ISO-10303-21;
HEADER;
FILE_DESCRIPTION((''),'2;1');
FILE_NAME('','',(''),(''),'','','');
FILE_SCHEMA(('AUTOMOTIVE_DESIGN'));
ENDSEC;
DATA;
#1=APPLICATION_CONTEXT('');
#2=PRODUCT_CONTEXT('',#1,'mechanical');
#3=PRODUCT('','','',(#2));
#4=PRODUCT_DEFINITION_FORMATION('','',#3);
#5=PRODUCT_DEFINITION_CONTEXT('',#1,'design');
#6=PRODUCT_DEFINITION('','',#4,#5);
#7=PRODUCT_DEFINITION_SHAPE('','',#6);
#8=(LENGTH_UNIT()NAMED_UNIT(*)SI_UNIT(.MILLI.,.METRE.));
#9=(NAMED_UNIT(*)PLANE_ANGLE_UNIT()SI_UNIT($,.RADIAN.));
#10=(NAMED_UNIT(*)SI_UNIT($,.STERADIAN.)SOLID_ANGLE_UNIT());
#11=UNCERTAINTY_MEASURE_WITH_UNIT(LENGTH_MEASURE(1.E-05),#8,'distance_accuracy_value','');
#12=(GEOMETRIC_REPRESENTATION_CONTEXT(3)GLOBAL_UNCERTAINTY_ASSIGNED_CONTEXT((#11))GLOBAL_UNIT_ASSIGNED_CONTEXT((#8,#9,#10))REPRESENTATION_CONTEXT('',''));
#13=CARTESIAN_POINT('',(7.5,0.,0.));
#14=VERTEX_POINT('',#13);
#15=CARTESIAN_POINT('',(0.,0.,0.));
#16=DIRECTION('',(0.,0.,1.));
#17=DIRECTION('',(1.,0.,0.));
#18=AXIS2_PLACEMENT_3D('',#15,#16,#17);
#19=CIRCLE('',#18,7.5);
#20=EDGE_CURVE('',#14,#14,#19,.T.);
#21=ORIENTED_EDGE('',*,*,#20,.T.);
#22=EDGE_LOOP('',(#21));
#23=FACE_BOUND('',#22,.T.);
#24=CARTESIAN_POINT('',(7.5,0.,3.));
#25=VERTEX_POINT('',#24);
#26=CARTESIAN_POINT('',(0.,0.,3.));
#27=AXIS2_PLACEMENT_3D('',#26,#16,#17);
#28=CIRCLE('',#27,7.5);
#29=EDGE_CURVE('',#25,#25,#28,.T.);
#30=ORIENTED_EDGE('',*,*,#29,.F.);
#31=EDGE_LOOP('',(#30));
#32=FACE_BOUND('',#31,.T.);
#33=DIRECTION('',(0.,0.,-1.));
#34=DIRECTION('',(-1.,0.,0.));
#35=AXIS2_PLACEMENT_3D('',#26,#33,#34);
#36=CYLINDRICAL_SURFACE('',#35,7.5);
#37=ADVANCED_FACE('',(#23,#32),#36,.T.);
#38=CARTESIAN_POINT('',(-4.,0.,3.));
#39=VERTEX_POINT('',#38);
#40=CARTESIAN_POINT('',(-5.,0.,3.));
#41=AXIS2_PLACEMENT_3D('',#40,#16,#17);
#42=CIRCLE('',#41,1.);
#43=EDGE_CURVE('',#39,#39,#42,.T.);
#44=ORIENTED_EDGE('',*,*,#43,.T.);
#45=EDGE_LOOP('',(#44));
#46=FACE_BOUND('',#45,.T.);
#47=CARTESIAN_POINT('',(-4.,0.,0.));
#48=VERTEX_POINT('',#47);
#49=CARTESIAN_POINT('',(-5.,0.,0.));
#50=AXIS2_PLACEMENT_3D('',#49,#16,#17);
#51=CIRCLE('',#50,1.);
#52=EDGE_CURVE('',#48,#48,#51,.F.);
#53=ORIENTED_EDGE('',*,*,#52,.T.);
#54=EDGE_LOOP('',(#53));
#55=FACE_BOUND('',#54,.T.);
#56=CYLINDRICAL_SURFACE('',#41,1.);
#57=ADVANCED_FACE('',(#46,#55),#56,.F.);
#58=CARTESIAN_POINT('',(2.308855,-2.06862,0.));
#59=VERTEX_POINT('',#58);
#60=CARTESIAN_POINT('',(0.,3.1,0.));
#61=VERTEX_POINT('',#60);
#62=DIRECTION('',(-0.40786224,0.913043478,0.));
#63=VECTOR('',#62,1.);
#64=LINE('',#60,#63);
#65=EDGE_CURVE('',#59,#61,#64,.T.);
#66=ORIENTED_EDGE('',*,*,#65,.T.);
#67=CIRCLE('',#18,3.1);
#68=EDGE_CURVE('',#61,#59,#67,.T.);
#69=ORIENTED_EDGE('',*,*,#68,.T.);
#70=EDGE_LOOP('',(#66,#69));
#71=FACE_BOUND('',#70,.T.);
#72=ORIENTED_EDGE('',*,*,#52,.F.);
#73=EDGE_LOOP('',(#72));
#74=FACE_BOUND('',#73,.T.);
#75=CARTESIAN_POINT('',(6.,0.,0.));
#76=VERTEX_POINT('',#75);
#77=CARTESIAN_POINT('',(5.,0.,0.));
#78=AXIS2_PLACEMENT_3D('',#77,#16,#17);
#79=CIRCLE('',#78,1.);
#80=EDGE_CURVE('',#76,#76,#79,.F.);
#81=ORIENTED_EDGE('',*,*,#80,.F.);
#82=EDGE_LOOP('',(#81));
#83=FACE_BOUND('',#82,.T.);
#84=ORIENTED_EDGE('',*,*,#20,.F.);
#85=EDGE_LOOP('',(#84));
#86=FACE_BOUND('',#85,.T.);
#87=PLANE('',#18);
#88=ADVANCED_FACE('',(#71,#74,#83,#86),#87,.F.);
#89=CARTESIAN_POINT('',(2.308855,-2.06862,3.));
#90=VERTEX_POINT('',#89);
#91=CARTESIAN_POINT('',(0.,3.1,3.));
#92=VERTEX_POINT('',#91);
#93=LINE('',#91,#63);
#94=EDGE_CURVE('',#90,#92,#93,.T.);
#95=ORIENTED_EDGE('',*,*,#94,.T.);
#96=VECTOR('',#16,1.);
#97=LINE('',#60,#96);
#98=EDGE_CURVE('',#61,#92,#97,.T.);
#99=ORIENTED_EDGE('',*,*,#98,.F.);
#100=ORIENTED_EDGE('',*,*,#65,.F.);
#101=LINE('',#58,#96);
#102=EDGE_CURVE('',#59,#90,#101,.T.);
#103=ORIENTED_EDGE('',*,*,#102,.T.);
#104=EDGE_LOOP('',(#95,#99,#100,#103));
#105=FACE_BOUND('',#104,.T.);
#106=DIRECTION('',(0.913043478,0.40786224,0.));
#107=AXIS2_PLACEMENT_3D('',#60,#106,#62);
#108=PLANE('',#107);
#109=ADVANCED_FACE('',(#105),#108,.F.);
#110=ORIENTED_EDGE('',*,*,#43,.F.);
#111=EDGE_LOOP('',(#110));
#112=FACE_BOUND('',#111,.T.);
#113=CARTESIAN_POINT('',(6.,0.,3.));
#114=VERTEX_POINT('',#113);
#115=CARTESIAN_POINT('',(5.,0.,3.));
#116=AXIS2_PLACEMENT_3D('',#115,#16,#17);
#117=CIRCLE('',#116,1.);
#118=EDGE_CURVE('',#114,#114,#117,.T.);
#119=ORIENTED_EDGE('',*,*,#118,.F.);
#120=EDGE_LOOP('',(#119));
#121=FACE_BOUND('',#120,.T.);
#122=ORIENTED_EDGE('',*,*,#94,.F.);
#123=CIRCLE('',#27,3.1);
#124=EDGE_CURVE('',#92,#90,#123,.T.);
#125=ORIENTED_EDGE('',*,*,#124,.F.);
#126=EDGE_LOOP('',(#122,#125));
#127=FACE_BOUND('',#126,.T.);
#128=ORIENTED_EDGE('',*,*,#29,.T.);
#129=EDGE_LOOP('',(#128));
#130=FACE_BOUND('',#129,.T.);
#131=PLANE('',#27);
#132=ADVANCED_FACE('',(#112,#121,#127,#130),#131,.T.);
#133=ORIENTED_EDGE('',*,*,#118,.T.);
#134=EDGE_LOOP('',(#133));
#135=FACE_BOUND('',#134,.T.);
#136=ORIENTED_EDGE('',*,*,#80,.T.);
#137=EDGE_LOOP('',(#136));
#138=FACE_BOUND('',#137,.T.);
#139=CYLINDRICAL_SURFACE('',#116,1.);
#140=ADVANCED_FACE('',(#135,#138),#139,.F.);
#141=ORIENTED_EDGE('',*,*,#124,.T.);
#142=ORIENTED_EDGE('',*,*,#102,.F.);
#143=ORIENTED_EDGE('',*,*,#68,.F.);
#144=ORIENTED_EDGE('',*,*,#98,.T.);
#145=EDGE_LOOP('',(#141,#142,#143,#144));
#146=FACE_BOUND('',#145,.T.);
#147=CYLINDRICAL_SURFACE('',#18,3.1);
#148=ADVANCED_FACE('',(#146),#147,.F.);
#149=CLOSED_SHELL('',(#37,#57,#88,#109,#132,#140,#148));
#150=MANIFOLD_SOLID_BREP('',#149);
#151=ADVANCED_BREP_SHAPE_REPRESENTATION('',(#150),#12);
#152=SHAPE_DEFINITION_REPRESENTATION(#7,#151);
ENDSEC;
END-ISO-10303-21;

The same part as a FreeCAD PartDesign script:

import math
import FreeCAD as App
import Part
import Sketcher

V = App.Vector
Q = App.Units.Quantity

doc = App.newDocument("Part")
body = doc.addObject("PartDesign::Body", "Body")

# Sketch on XY plane
sketch1 = body.newObject("Sketcher::SketchObject", "Sketch")
sketch1.AttachmentSupport = (doc.getObject("XY_Plane"), [""])
sketch1.MapMode = "FlatFace"
sketch1.addGeometry(Part.Circle(V(0, 0, 0), V(0, 0, 1), 8), False)
sketch1.addConstraint([
    Sketcher.Constraint("Coincident", 0, 3, -1, 1),
    Sketcher.Constraint("Diameter", 0, Q("15 mm")),
])
pad1 = body.newObject("PartDesign::Pad", "Pad")
pad1.Profile = sketch1
pad1.Length = 3

# Sketch on XY plane
sketch2 = body.newObject("Sketcher::SketchObject", "Sketch001")
sketch2.AttachmentSupport = (doc.getObject("XY_Plane"), [""])
sketch2.MapMode = "FlatFace"
sketch2.AttachmentOffset = App.Placement(V(0, 0, 3), App.Rotation())
sketch2.addGeometry([
    Part.LineSegment(V(2.3, -2.1, 0), V(0, 3.1, 0)),
    Part.ArcOfCircle(Part.Circle(V(0, 0, 0), V(0, 0, 1), 3.1), math.radians(90), math.radians(318)),
], False)
sketch2.addConstraint([
    Sketcher.Constraint("Coincident", 0, 1, 1, 2),
    Sketcher.Constraint("Coincident", 1, 1, 0, 2),
    Sketcher.Constraint("Coincident", 1, 3, -1, 1),
    Sketcher.Constraint("PointOnObject", 1, 1, -2),
    Sketcher.Constraint("Radius", 1, Q("3.1 mm")),
    Sketcher.Constraint("Distance", 0, Q("5.66087 mm")),
])
pocket1 = body.newObject("PartDesign::Pocket", "Pocket")
pocket1.Profile = sketch2
pocket1.Length = 3

# Sketch on XY plane
sketch3 = body.newObject("Sketcher::SketchObject", "Sketch002")
sketch3.AttachmentSupport = (doc.getObject("XY_Plane"), [""])
sketch3.MapMode = "FlatFace"
sketch3.AttachmentOffset = App.Placement(V(0, 0, 3), App.Rotation())
sketch3.addGeometry([
    Part.Circle(V(-5, 0, 0), V(0, 0, 1), 1),
    Part.Circle(V(5, 0, 0), V(0, 0, 1), 1),
], False)
sketch3.addConstraint([
    Sketcher.Constraint("Equal", 0, 1),
    Sketcher.Constraint("Symmetric", 0, 3, 1, 3, -1, 1),
    Sketcher.Constraint("PointOnObject", 0, 3, -1),
    Sketcher.Constraint("Diameter", 0, Q("2 mm")),
    Sketcher.Constraint("DistanceX", 0, 3, -1, 1, Q("5 mm")),
])
doc.recompute()
hole = body.newObject("PartDesign::Hole", "Hole")
hole.Profile = sketch3
hole.ThreadType = "None"
hole.Diameter = 2
hole.DepthType = "ThroughAll"

doc.recompute()
